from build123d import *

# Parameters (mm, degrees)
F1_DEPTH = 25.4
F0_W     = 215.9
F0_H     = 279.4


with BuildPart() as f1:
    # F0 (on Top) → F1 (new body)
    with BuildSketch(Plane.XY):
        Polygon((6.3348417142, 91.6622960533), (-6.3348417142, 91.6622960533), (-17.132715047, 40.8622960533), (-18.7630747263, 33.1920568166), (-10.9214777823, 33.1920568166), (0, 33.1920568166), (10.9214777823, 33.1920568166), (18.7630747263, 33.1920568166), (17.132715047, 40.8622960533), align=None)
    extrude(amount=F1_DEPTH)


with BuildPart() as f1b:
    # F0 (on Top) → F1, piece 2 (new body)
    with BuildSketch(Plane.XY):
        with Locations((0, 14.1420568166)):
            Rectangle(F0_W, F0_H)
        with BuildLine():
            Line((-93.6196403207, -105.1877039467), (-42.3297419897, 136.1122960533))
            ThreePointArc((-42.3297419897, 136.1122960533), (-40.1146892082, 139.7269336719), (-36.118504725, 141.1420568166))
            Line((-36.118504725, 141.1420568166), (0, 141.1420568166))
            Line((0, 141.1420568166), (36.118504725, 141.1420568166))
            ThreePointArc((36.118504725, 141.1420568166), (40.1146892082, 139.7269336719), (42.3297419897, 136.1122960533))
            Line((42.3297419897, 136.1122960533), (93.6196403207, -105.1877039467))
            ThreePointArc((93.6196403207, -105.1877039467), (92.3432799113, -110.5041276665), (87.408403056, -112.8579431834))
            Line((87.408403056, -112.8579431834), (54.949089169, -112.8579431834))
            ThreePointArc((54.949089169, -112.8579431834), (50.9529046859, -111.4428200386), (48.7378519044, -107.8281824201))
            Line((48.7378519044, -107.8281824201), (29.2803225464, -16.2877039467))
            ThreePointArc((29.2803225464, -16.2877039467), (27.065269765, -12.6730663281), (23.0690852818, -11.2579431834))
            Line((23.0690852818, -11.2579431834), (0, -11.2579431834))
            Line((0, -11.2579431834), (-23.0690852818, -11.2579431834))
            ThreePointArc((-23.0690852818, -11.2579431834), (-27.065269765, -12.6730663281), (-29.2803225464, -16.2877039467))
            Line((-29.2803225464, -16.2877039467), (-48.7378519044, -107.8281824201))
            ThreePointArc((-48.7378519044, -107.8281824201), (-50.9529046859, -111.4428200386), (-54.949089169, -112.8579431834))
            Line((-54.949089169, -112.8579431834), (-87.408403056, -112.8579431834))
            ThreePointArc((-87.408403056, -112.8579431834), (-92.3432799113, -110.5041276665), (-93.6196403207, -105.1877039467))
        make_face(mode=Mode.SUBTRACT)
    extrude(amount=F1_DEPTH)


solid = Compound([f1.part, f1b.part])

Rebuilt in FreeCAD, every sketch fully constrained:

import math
import FreeCAD as App
import Part
import Sketcher
Q = App.Units.Quantity


def add_polygon(sketch, points):
    """Adds a closed chain of lines whose ends are joined by coincident constraints."""
    first, n = sketch.GeometryCount, len(points)
    for a, b in zip(points, points[1:] + points[:1]):
        sketch.addGeometry(Part.LineSegment(App.Vector(*a, 0), App.Vector(*b, 0)), False)
    for i in range(n):
        sketch.addConstraint(Sketcher.Constraint("Coincident", first + i, 2, first + (i + 1) % n, 1))

doc = App.newDocument("Part")
body = doc.addObject("PartDesign::Body", "Body")

sketch1 = body.newObject("Sketcher::SketchObject", "Sketch")
sketch1.AttachmentSupport = (doc.getObject("XY_Plane"), [""])
sketch1.MapMode = "FlatFace"
add_polygon(sketch1, [(6, 92), (-6, 92), (-17, 41), (-19, 33), (19, 33), (17, 41)])
sketch1.addConstraint([
    Sketcher.Constraint("Horizontal", 0),
    Sketcher.Constraint("Horizontal", 3),
    Sketcher.Constraint("Symmetric", 1, 2, 4, 2, -2),
    Sketcher.Constraint("Parallel", 1, 2),
    Sketcher.Constraint("Parallel", 4, 5),
    Sketcher.Constraint("Equal", 2, 4),
    Sketcher.Constraint("Angle", 1, Q("-102 deg")),
    Sketcher.Constraint("DistanceY", 1, 2, 0, 2, Q("2 in")),
    Sketcher.Constraint("DistanceX", 3, 1, 3, 2, 37.526149),
    Sketcher.Constraint("DistanceX", 0, 2, 0, 1, 12.669683),
    Sketcher.Constraint("DistanceY", -1, 1, 0, 2, 91.662296),
])
pad1 = body.newObject("PartDesign::Pad", "Pad")
pad1.Profile = sketch1
pad1.Length = Q("1 in")
body2 = doc.addObject("PartDesign::Body", "Body001")

sketch2 = body2.newObject("Sketcher::SketchObject", "Sketch001")
sketch2.AttachmentSupport = (doc.getObject("XY_Plane001"), [""])
sketch2.MapMode = "FlatFace"
add_polygon(sketch2, [(-108, 154), (-108, -126), (108, -126), (108, 154)])
sketch2.addGeometry(Part.ArcOfCircle(Part.Circle(App.Vector(-87, -107, 0), App.Vector(0, 0, 1), 6), math.radians(168), math.radians(270)), False)
sketch2.addGeometry(Part.LineSegment(App.Vector(-94, -105, 0), App.Vector(-42, 136, 0)), False)
sketch2.addGeometry(Part.ArcOfCircle(Part.Circle(App.Vector(-36, 135, 0), App.Vector(0, 0, 1), 6), math.radians(90), math.radians(168)), False)
sketch2.addGeometry(Part.LineSegment(App.Vector(-36, 141, 0), App.Vector(36, 141, 0)), False)
sketch2.addGeometry(Part.ArcOfCircle(Part.Circle(App.Vector(36, 135, 0), App.Vector(0, 0, 1), 6), math.radians(12), math.radians(90)), False)
sketch2.addGeometry(Part.LineSegment(App.Vector(42, 136, 0), App.Vector(94, -105, 0)), False)
sketch2.addGeometry(Part.ArcOfCircle(Part.Circle(App.Vector(87, -107, 0), App.Vector(0, 0, 1), 6), math.radians(-90), math.radians(12)), False)
sketch2.addGeometry(Part.LineSegment(App.Vector(87, -113, 0), App.Vector(55, -113, 0)), False)
sketch2.addGeometry(Part.ArcOfCircle(Part.Circle(App.Vector(55, -107, 0), App.Vector(0, 0, 1), 6), math.radians(-168), math.radians(-90)), False)
sketch2.addGeometry(Part.LineSegment(App.Vector(49, -108, 0), App.Vector(29, -16, 0)), False)
sketch2.addGeometry(Part.ArcOfCircle(Part.Circle(App.Vector(23, -18, 0), App.Vector(0, 0, 1), 6), math.radians(12), math.radians(90)), False)
sketch2.addGeometry(Part.LineSegment(App.Vector(23, -11, 0), App.Vector(-23, -11, 0)), False)
sketch2.addGeometry(Part.ArcOfCircle(Part.Circle(App.Vector(-23, -18, 0), App.Vector(0, 0, 1), 6), math.radians(90), math.radians(168)), False)
sketch2.addGeometry(Part.LineSegment(App.Vector(-29, -16, 0), App.Vector(-49, -108, 0)), False)
sketch2.addGeometry(Part.ArcOfCircle(Part.Circle(App.Vector(-55, -107, 0), App.Vector(0, 0, 1), 6), math.radians(-90), math.radians(-12)), False)
sketch2.addGeometry(Part.LineSegment(App.Vector(-55, -113, 0), App.Vector(-87, -113, 0)), False)
sketch2.addConstraint([
    Sketcher.Constraint("Tangent", 4, 1, 5, 1),
    Sketcher.Constraint("Tangent", 5, 2, 6, 2),
    Sketcher.Constraint("Tangent", 6, 1, 7, 1),
    Sketcher.Constraint("Tangent", 7, 2, 8, 2),
    Sketcher.Constraint("Tangent", 8, 1, 9, 1),
    Sketcher.Constraint("Tangent", 9, 2, 10, 2),
    Sketcher.Constraint("Tangent", 10, 1, 11, 1),
    Sketcher.Constraint("Tangent", 11, 2, 12, 2),
    Sketcher.Constraint("Tangent", 12, 1, 13, 1),
    Sketcher.Constraint("Tangent", 13, 2, 14, 1),
    Sketcher.Constraint("Tangent", 14, 2, 15, 1),
    Sketcher.Constraint("Tangent", 15, 2, 16, 1),
    Sketcher.Constraint("Tangent", 16, 2, 17, 1),
    Sketcher.Constraint("Tangent", 17, 2, 18, 2),
    Sketcher.Constraint("Tangent", 18, 1, 19, 1),
    Sketcher.Constraint("Tangent", 19, 2, 4, 2),
    Sketcher.Constraint("Vertical", 0),
    Sketcher.Constraint("Horizontal", 1),
    Sketcher.Constraint("Vertical", 2),
    Sketcher.Constraint("Horizontal", 3),
    Sketcher.Constraint("Horizontal", 7),
    Sketcher.Constraint("Horizontal", 11),
    Sketcher.Constraint("Horizontal", 15),
    Sketcher.Constraint("Horizontal", 19),
    Sketcher.Constraint("Equal", 4, 6),
    Sketcher.Constraint("Equal", 6, 8),
    Sketcher.Constraint("Equal", 8, 10),
    Sketcher.Constraint("Equal", 10, 12),
    Sketcher.Constraint("Equal", 12, 14),
    Sketcher.Constraint("Equal", 14, 16),
    Sketcher.Constraint("Equal", 16, 18),
    Sketcher.Constraint("Symmetric", 4, 3, 10, 3, -2),
    Sketcher.Constraint("Symmetric", 13, 2, 16, 2, -2),
    Sketcher.Constraint("Parallel", 9, 13),
    Sketcher.Constraint("Parallel", 5, 17),
    Sketcher.Constraint("DistanceY", 0, 2, 0, 1, Q("11 in")),
    Sketcher.Constraint("Radius", 4, Q("0.25 in")),
    Sketcher.Constraint("DistanceX", 1, 1, 1, 2, Q("8.5 in")),
    Sketcher.Constraint("Angle", 5, Q("78 deg")),
    Sketcher.Constraint("DistanceY", 14, 3, 8, 3, Q("6 in")),
    Sketcher.Constraint("DistanceY", 4, 3, 6, 3, Q("9.5 in")),
    Sketcher.Constraint("DistanceY", 6, 1, 3, 2, Q("0.5 in")),
    Sketcher.Constraint("DistanceX", 0, 2, -1, 1, Q("4.25 in")),
    Sketcher.Constraint("DistanceX", 18, 3, 12, 3, Q("4.3266999 in")),
    Sketcher.Constraint("DistanceX", 7, 1, 7, 2, 72.237009),
    Sketcher.Constraint("DistanceY", 4, 3, -1, 1, 106.507943),
])
pad2 = body2.newObject("PartDesign::Pad", "Pad001")
pad2.Profile = sketch2
pad2.Length = Q("1 in")

doc.recompute()
